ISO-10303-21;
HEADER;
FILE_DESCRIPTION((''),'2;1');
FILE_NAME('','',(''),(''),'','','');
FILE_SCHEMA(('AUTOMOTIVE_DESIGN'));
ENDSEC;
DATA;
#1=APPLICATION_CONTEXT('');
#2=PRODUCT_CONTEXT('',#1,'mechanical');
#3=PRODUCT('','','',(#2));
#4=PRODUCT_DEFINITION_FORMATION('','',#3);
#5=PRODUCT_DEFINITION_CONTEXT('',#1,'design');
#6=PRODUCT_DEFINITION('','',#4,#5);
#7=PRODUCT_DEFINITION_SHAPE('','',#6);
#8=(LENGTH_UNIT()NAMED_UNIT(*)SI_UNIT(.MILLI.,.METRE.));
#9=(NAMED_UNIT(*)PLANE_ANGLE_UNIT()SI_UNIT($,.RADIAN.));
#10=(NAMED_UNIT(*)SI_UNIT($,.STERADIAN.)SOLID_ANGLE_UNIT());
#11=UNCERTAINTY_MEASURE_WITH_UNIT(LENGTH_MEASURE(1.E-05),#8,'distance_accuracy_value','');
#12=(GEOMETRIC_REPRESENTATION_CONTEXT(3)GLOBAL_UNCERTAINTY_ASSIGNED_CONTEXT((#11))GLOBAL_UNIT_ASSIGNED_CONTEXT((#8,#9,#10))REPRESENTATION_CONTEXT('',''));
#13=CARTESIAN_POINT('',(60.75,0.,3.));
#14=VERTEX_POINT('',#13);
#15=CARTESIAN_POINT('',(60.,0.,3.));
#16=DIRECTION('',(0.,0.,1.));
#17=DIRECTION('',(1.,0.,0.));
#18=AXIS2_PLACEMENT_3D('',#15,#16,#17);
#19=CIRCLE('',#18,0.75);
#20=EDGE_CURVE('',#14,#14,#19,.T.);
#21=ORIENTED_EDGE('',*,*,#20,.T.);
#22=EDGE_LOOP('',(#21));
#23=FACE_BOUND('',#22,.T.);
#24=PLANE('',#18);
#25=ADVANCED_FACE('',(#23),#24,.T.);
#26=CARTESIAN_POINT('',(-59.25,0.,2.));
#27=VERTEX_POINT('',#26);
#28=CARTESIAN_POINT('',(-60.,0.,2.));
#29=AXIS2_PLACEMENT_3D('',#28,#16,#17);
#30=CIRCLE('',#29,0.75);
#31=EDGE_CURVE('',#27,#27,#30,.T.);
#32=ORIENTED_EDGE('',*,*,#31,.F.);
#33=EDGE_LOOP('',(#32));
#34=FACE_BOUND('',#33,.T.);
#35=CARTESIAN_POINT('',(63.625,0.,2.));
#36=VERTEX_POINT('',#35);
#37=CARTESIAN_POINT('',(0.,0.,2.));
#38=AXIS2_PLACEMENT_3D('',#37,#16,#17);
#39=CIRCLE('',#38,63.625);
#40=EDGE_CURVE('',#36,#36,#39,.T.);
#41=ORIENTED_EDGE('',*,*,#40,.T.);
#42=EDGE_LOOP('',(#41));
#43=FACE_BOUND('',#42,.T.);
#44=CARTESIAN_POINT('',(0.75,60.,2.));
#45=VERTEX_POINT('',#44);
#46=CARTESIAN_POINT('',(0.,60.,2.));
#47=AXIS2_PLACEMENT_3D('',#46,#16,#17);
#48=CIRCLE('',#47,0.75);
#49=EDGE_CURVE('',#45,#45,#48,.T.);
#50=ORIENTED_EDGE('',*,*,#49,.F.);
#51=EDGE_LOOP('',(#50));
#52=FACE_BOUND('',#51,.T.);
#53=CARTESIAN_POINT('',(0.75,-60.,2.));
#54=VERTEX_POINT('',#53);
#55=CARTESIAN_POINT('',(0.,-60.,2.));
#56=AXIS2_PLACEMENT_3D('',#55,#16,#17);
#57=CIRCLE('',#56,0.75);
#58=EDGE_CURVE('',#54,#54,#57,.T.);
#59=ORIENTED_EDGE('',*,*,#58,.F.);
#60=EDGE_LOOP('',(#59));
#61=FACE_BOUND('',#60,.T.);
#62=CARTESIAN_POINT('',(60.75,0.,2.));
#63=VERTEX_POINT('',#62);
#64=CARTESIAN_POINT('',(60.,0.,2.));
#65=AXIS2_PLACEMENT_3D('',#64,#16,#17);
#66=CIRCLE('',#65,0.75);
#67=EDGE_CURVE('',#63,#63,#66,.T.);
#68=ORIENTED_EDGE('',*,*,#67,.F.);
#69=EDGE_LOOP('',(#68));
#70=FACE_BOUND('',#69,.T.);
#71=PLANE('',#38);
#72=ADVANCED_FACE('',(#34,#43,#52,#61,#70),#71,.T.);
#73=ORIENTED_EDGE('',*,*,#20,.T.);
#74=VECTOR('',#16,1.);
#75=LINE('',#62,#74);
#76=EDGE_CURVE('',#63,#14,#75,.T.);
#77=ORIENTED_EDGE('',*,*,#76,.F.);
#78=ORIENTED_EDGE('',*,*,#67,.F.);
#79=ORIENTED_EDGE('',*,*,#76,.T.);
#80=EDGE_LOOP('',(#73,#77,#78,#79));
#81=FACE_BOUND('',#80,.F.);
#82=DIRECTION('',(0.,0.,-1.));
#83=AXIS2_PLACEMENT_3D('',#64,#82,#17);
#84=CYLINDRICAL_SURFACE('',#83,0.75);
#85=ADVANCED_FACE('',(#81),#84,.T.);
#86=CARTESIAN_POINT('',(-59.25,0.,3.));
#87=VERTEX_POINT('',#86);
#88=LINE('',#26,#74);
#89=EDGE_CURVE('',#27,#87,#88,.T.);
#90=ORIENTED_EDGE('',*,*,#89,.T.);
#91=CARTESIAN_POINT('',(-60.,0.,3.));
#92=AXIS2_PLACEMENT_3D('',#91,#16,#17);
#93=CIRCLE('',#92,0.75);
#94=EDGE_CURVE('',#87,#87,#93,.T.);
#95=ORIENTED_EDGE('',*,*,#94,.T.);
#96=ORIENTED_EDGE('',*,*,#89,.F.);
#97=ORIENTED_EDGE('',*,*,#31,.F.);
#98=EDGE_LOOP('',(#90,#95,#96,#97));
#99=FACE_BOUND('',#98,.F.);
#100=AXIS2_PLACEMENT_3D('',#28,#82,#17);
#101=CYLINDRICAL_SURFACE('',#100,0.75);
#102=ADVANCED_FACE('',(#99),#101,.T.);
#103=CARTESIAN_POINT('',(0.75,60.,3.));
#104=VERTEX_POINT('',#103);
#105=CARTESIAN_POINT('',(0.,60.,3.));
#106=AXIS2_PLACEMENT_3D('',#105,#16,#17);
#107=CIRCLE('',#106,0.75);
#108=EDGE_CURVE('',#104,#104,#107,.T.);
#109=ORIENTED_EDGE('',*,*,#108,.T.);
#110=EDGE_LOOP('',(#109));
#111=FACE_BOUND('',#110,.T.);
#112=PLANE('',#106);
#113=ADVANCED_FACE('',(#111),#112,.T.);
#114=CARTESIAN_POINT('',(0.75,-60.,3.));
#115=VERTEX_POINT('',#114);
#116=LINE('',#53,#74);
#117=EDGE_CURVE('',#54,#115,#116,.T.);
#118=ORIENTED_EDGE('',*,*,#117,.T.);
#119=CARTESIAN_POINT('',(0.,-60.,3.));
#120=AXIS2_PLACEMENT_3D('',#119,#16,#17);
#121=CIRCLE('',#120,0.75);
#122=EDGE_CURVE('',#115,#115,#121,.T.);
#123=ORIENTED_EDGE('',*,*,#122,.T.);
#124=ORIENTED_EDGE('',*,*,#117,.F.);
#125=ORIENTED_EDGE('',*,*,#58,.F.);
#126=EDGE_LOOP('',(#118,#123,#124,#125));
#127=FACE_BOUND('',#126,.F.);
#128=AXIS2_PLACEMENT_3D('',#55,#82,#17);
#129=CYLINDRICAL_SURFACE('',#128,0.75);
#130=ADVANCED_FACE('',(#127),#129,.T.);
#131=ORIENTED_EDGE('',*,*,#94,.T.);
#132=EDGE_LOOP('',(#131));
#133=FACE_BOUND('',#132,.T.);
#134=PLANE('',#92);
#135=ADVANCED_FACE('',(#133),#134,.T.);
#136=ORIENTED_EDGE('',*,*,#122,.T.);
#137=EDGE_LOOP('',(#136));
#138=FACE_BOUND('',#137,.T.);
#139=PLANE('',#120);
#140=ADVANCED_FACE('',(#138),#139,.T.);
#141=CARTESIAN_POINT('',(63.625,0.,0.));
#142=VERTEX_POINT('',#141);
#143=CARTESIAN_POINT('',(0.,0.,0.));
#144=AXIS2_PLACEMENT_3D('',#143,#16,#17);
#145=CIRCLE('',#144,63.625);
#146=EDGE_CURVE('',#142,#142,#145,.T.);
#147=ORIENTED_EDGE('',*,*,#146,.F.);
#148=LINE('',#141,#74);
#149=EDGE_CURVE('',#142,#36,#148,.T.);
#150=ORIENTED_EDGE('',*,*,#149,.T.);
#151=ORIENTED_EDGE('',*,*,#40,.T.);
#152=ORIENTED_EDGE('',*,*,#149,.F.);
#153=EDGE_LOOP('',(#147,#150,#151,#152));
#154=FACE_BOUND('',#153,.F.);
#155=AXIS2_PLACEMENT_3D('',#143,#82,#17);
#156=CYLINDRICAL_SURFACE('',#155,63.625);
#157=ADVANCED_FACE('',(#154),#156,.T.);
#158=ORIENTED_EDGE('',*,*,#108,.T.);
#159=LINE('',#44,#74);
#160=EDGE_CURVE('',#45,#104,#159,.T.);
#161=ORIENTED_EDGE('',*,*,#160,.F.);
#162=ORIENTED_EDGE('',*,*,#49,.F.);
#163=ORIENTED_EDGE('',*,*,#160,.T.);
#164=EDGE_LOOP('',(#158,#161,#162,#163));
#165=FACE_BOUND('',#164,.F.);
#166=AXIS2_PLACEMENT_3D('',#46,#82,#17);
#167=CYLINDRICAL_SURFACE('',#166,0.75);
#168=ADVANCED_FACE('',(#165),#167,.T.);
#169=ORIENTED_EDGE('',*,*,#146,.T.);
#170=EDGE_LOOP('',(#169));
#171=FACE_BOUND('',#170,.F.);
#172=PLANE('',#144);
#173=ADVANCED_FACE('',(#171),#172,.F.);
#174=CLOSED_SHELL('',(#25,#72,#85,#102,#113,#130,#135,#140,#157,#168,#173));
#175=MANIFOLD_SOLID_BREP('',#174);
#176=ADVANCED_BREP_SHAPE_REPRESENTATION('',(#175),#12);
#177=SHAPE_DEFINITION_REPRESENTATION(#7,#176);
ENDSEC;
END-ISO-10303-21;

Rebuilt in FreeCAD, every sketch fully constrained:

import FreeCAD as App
import Part
import Sketcher

doc = App.newDocument("Part")
params = doc.addObject("Spreadsheet::Sheet", "Params")
for row, (alias, value) in enumerate([
    ("sketch1_diameter", "127.25 mm"),
    ("pad1_length", "2 mm"),
    ("sketch2_diameter", "1.5 mm"),
    ("pad2_length", "1 mm"),
], start=1):
    params.set(f"A{row}", alias)
    params.set(f"B{row}", "=" + value)
    params.setAlias(f"B{row}", alias)

body = doc.addObject("PartDesign::Body", "Body")

# Sketch on XY plane
sketch1 = doc.addObject("Sketcher::SketchObject", "Sketch")
body.addObject(sketch1)
sketch1.AttachmentSupport = (doc.XY_Plane, [""])
sketch1.MapMode = "FlatFace"
sketch1.addGeometry(Part.Circle(App.Vector(0, 0, 0), App.Vector(0, 0, 1), 64), False)
sketch1.addConstraint([
    Sketcher.Constraint("Coincident", 0, 3, -1, 1),
    Sketcher.Constraint("Diameter", 0, 127.25),
])
sketch1.setExpression("Constraints[1]", "Params.sketch1_diameter")
pad1 = doc.addObject("PartDesign::Pad", "Pad")
body.addObject(pad1)
pad1.Profile = sketch1
pad1.setExpression("Length", "Params.pad1_length")

# Sketch on XY plane
sketch2 = doc.addObject("Sketcher::SketchObject", "Sketch001")
body.addObject(sketch2)
sketch2.AttachmentSupport = (doc.XY_Plane, [""])
sketch2.MapMode = "FlatFace"
sketch2.AttachmentOffset = App.Placement(App.Vector(0, 0, 2), App.Rotation())
sketch2.addGeometry([
    Part.Circle(App.Vector(0, 60, 0), App.Vector(0, 0, 1), 0.8),
    Part.Circle(App.Vector(-60, 0, 0), App.Vector(0, 0, 1), 0.8),
    Part.Circle(App.Vector(0, -60, 0), App.Vector(0, 0, 1), 0.8),
    Part.Circle(App.Vector(60, 0, 0), App.Vector(0, 0, 1), 0.8),
], False)
sketch2.addConstraint([
    Sketcher.Constraint("Equal", 0, 1),
    Sketcher.Constraint("Equal", 1, 2),
    Sketcher.Constraint("Equal", 2, 3),
    Sketcher.Constraint("Symmetric", 0, 3, 2, 3, -1, 1),
    Sketcher.Constraint("Symmetric", 1, 3, 3, 3, -1, 1),
    Sketcher.Constraint("PointOnObject", 0, 3, -2),
    Sketcher.Constraint("PointOnObject", 1, 3, -1),
    Sketcher.Constraint("Diameter", 0, 1.5),
    Sketcher.Constraint("DistanceY", -1, 1, 0, 3, 60.0),
    Sketcher.Constraint("DistanceX", 1, 3, -1, 1, 60.0),
])
sketch2.setExpression("Constraints[7]", "Params.sketch2_diameter")
pad2 = doc.addObject("PartDesign::Pad", "Pad001")
body.addObject(pad2)
pad2.Profile = sketch2
pad2.setExpression("Length", "Params.pad2_length")

doc.recompute()
